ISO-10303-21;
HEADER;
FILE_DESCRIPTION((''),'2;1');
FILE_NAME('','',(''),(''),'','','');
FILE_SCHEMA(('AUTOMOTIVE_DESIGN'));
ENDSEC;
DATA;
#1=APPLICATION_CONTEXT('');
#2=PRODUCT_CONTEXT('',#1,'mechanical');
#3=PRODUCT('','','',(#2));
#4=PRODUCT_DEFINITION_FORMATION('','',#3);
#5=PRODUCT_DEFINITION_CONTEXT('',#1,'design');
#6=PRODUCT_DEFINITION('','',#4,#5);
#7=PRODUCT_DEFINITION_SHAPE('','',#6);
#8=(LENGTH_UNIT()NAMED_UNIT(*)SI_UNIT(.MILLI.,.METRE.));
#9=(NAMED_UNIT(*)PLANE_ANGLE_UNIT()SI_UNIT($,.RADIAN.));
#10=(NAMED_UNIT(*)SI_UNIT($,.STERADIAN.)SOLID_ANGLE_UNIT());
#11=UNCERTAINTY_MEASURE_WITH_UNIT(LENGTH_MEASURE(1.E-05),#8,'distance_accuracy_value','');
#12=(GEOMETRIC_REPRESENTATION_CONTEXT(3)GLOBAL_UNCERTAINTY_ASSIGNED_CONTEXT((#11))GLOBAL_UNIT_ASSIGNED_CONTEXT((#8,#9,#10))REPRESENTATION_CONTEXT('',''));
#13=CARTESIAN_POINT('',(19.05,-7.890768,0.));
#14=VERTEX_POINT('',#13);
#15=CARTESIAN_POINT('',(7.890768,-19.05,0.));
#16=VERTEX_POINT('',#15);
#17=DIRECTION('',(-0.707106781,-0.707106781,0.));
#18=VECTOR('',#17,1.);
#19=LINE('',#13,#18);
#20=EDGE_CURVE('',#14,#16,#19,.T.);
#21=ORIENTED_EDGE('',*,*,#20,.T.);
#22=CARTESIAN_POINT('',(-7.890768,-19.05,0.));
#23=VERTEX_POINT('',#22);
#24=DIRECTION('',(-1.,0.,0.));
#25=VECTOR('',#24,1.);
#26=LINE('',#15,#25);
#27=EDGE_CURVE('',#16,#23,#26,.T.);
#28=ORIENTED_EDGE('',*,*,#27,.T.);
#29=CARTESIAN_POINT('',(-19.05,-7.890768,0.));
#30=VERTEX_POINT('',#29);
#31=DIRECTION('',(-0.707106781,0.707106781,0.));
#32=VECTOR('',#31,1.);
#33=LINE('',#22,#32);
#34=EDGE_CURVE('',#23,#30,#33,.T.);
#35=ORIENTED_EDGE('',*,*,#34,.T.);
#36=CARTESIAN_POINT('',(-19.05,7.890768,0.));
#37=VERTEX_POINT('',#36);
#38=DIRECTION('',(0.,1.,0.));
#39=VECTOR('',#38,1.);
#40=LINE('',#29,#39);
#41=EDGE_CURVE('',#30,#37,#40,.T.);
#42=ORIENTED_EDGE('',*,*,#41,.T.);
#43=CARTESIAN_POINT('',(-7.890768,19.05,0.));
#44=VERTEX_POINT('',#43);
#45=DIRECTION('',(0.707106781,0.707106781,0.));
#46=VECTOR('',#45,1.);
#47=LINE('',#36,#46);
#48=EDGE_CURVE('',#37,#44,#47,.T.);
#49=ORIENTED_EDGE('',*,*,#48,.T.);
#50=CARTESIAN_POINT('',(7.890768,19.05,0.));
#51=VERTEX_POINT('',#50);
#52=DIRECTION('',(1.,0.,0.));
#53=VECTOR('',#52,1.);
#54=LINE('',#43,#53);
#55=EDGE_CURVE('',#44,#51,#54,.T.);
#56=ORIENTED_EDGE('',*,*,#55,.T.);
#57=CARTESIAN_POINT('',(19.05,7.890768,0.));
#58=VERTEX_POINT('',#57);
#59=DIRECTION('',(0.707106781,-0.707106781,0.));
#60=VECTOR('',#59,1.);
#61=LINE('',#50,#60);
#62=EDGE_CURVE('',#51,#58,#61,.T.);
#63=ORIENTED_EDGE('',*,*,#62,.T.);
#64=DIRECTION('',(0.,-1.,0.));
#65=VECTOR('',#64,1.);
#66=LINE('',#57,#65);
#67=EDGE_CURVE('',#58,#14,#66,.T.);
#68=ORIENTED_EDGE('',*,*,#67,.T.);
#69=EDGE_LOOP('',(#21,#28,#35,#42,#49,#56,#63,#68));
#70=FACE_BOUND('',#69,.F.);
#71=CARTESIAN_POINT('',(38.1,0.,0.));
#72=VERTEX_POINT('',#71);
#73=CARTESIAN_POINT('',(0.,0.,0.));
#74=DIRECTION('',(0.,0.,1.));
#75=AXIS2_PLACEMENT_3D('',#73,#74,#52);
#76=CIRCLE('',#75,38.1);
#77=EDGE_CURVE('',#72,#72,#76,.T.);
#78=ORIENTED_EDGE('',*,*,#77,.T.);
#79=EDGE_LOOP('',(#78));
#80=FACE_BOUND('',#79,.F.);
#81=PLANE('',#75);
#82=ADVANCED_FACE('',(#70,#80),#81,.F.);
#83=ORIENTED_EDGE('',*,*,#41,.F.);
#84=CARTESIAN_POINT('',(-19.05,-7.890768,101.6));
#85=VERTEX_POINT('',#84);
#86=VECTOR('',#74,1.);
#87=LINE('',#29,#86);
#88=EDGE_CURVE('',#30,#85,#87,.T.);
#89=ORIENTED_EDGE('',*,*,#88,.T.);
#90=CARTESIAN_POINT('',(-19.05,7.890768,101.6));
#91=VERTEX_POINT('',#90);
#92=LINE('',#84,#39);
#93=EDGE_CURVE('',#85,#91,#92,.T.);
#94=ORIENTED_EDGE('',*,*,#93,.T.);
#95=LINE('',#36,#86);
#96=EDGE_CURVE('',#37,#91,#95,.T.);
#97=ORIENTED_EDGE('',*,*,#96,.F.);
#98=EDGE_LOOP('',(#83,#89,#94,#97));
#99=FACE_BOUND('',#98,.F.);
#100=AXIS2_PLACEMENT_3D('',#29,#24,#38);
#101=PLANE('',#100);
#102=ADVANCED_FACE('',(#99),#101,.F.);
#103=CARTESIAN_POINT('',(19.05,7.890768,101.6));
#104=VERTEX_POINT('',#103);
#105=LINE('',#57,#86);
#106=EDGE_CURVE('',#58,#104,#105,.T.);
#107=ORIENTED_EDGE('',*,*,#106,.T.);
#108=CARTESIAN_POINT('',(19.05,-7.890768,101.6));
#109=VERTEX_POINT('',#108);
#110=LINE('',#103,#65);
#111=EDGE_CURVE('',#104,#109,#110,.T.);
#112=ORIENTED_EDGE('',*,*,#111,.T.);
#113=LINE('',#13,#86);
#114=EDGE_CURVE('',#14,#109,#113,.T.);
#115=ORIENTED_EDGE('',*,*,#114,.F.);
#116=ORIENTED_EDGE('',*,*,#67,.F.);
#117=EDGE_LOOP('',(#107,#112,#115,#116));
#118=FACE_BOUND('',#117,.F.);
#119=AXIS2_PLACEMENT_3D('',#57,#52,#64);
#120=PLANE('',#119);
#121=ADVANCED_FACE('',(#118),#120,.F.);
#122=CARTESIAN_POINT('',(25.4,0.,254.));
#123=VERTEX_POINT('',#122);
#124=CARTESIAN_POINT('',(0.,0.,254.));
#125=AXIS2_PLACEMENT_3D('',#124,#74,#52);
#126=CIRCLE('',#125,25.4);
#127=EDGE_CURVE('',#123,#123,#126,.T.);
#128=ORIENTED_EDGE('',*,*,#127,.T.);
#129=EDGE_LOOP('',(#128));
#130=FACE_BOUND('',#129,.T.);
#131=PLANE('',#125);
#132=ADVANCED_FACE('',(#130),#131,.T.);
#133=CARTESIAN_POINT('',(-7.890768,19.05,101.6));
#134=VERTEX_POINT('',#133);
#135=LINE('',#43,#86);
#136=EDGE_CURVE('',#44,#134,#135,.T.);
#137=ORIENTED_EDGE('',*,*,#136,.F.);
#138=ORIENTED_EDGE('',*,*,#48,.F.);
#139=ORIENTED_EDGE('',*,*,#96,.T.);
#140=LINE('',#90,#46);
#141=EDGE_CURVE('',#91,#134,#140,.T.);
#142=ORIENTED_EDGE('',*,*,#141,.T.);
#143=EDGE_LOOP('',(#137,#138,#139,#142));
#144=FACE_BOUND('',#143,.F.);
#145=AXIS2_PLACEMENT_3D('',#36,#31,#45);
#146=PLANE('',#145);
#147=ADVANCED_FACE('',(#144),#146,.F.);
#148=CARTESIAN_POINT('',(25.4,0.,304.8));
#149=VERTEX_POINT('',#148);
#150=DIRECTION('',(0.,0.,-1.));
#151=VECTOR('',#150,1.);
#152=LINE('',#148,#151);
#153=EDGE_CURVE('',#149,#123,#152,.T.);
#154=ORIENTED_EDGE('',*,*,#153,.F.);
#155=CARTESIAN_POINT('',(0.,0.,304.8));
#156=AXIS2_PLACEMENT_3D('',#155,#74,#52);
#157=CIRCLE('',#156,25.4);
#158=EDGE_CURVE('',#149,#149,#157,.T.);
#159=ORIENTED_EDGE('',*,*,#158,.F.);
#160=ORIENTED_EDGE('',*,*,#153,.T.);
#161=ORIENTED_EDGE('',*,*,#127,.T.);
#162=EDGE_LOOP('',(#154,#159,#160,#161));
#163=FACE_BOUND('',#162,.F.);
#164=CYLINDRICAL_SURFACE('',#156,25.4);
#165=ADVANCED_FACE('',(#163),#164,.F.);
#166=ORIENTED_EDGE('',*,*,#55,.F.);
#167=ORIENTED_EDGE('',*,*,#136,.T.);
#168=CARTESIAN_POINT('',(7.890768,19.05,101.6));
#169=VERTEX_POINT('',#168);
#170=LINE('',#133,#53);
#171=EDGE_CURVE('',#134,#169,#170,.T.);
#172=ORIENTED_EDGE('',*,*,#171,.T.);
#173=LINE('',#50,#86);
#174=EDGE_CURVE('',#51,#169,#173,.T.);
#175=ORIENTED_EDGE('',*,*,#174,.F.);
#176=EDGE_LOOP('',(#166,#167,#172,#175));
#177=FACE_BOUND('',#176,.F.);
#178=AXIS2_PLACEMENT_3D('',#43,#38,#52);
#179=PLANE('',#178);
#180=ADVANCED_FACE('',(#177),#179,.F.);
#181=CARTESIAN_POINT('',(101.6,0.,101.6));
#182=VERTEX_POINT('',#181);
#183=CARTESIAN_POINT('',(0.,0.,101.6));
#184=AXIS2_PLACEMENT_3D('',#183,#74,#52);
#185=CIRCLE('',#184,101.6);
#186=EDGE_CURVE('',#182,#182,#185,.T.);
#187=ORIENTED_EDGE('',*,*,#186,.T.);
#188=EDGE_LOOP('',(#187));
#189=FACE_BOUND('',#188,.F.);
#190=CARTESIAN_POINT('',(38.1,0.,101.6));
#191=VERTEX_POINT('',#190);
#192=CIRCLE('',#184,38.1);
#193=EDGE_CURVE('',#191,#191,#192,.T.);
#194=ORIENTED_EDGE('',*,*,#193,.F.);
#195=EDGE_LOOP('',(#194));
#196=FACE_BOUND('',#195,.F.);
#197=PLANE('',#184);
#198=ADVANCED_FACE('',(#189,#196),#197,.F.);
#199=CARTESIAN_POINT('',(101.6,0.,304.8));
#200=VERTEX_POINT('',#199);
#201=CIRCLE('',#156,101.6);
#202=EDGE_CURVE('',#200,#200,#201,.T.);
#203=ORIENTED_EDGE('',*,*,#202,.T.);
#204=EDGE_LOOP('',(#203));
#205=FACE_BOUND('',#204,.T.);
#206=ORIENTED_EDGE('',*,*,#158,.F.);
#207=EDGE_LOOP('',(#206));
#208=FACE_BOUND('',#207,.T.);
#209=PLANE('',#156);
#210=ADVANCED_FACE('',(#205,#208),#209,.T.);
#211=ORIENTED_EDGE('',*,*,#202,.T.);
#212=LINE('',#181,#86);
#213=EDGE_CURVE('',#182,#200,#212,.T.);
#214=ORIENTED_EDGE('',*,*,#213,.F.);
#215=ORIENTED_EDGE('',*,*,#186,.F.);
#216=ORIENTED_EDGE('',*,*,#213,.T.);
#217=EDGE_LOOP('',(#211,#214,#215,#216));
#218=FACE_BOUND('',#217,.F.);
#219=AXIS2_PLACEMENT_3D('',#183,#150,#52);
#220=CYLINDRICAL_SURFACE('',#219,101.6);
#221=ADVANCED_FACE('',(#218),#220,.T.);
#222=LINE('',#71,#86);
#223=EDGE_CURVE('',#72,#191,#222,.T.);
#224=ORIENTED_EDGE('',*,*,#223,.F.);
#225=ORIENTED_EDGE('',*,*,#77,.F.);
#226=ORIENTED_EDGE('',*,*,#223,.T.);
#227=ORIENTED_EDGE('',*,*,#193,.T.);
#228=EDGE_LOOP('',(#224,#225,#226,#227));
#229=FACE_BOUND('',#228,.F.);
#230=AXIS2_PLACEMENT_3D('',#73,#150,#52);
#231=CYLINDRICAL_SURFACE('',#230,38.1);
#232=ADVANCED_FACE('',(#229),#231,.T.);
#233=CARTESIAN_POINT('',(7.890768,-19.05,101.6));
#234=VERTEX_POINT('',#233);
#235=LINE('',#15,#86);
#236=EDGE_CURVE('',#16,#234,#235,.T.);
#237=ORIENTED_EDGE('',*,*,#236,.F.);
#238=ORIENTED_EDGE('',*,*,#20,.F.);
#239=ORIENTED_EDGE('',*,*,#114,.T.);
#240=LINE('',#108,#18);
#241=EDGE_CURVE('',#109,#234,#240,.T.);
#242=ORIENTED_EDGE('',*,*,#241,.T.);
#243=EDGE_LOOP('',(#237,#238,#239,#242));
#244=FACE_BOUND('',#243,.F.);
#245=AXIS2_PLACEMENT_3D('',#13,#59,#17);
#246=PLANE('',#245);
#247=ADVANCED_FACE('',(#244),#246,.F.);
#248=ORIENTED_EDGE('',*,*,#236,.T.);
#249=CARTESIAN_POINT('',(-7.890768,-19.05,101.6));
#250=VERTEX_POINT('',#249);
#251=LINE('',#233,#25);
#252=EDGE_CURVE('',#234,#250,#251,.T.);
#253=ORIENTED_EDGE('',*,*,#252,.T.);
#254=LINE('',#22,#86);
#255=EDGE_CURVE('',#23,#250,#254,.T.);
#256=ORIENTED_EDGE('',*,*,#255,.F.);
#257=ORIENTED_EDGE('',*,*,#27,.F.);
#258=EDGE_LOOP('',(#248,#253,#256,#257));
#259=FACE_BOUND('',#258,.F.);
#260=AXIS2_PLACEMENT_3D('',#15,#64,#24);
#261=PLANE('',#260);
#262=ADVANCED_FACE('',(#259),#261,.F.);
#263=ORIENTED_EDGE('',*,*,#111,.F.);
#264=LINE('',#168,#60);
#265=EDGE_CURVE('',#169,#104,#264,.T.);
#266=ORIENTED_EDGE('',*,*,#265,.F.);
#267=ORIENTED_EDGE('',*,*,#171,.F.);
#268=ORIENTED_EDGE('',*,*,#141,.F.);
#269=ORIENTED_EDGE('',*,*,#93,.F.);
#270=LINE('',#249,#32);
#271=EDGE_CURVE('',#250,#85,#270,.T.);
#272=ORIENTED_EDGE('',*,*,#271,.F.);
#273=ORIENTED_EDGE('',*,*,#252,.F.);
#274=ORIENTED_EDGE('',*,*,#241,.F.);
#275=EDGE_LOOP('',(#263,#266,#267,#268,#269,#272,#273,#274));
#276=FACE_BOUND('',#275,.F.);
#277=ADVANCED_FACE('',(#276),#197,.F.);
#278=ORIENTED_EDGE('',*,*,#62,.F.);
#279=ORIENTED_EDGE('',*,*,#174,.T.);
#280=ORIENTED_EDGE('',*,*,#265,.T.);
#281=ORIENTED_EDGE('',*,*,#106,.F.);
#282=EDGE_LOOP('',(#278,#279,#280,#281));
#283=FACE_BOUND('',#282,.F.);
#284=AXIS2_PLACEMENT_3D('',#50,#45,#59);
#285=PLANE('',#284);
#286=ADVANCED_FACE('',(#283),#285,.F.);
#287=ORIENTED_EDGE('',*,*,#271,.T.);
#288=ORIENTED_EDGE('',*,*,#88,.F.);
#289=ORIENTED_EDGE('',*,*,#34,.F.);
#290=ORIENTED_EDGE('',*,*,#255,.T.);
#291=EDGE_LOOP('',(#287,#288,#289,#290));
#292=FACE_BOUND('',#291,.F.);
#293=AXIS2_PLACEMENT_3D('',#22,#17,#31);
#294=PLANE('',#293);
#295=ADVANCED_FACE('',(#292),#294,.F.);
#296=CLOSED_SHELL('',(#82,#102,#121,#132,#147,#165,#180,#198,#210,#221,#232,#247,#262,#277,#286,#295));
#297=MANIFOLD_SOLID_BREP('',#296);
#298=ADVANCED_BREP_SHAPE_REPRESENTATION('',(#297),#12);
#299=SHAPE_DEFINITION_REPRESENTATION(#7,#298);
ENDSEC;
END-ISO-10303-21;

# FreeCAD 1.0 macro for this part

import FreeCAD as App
import Part
import Sketcher
from FreeCAD import Vector
Q = App.Units.Quantity


def add_polygon(sketch, points):
    """Adds a closed chain of lines whose ends are joined by coincident constraints."""
    first, n = sketch.GeometryCount, len(points)
    for a, b in zip(points, points[1:] + points[:1]):
        sketch.addGeometry(Part.LineSegment(App.Vector(*a, 0), App.Vector(*b, 0)), False)
    for i in range(n):
        sketch.addConstraint(Sketcher.Constraint("Coincident", first + i, 2, first + (i + 1) % n, 1))

doc = App.newDocument("Part")
body = doc.addObject("PartDesign::Body", "Body")

# Sketch on XY plane
sketch1 = body.newObject("Sketcher::SketchObject", "Sketch")
sketch1.AttachmentSupport = (doc.getObject("XY_Plane"), [""])
sketch1.MapMode = "FlatFace"
sketch1.addGeometry(Part.Circle(Vector(0, 0, 0), Vector(0, 0, 1), 38), False)  # 0
add_polygon(sketch1, [(-19, -8), (-19, 8), (-8, 19), (8, 19), (19, 8), (19, -8), (8, -19), (-8, -19)])  # lines 1-8
sketch1.addConstraint(Sketcher.Constraint("Vertical", 1))
sketch1.addConstraint(Sketcher.Constraint("Horizontal", 3))
sketch1.addConstraint(Sketcher.Constraint("Vertical", 5))
sketch1.addConstraint(Sketcher.Constraint("Horizontal", 7))
sketch1.addConstraint(Sketcher.Constraint("Coincident", 0, 3, -1, 1))
sketch1.addConstraint(Sketcher.Constraint("Symmetric", 1, 2, 5, 2, -1, 1))
sketch1.addConstraint(Sketcher.Constraint("Symmetric", 2, 2, 6, 2, -1, 1))
sketch1.addConstraint(Sketcher.Constraint("Perpendicular", 2, 4))
sketch1.addConstraint(Sketcher.Constraint("Perpendicular", 6, 8))
sketch1.addConstraint(Sketcher.Constraint("Horizontal", 1, 2, 4, 2))
sketch1.addConstraint(Sketcher.Constraint("Horizontal", 5, 2, 8, 2))
sketch1.addConstraint(Sketcher.Constraint("Vertical", 3, 2, 6, 2))
sketch1.addConstraint(Sketcher.Constraint("Equal", 7, 1))
sketch1.addConstraint(Sketcher.Constraint("Diameter", 0, Q("3 in")))
sketch1.addConstraint(Sketcher.Constraint("DistanceX", 1, 2, 4, 2, Q("1.5 in")))
sketch1.addConstraint(Sketcher.Constraint("DistanceX", 3, 1, 3, 2, Q("15.781536 mm")))
pad1 = body.newObject("PartDesign::Pad", "Pad")
pad1.Profile = sketch1
pad1.Length = Q("4 in")

# Sketch on XY plane
sketch2 = body.newObject("Sketcher::SketchObject", "Sketch001")
sketch2.AttachmentSupport = (doc.getObject("XY_Plane"), [""])
sketch2.MapMode = "FlatFace"
sketch2.AttachmentOffset = App.Placement(Vector(0, 0, 4 * 25.4), App.Rotation())
sketch2.addGeometry(Part.Circle(Vector(0, 0, 0), Vector(0, 0, 1), 102), False)
sketch2.addConstraint(Sketcher.Constraint("Coincident", 0, 3, -1, 1))
sketch2.addConstraint(Sketcher.Constraint("Diameter", 0, Q("8 in")))
pad2 = body.newObject("PartDesign::Pad", "Pad001")
pad2.Profile = sketch2
pad2.Length = Q("8 in")

# Sketch on XY plane
sketch3 = body.newObject("Sketcher::SketchObject", "Sketch002")
sketch3.AttachmentSupport = (doc.getObject("XY_Plane"), [""])
sketch3.MapMode = "FlatFace"
sketch3.AttachmentOffset = App.Placement(Vector(0, 0, 12 * 25.4), App.Rotation())
sketch3.addGeometry(Part.Circle(Vector(0, 0, 0), Vector(0, 0, 1), 25), False)
sketch3.addConstraint(Sketcher.Constraint("Coincident", 0, 3, -1, 1))
sketch3.addConstraint(Sketcher.Constraint("Diameter", 0, Q("2 in")))
pocket1 = body.newObject("PartDesign::Pocket", "Pocket")
pocket1.Profile = sketch3
pocket1.Length = Q("2 in")

doc.recompute()
